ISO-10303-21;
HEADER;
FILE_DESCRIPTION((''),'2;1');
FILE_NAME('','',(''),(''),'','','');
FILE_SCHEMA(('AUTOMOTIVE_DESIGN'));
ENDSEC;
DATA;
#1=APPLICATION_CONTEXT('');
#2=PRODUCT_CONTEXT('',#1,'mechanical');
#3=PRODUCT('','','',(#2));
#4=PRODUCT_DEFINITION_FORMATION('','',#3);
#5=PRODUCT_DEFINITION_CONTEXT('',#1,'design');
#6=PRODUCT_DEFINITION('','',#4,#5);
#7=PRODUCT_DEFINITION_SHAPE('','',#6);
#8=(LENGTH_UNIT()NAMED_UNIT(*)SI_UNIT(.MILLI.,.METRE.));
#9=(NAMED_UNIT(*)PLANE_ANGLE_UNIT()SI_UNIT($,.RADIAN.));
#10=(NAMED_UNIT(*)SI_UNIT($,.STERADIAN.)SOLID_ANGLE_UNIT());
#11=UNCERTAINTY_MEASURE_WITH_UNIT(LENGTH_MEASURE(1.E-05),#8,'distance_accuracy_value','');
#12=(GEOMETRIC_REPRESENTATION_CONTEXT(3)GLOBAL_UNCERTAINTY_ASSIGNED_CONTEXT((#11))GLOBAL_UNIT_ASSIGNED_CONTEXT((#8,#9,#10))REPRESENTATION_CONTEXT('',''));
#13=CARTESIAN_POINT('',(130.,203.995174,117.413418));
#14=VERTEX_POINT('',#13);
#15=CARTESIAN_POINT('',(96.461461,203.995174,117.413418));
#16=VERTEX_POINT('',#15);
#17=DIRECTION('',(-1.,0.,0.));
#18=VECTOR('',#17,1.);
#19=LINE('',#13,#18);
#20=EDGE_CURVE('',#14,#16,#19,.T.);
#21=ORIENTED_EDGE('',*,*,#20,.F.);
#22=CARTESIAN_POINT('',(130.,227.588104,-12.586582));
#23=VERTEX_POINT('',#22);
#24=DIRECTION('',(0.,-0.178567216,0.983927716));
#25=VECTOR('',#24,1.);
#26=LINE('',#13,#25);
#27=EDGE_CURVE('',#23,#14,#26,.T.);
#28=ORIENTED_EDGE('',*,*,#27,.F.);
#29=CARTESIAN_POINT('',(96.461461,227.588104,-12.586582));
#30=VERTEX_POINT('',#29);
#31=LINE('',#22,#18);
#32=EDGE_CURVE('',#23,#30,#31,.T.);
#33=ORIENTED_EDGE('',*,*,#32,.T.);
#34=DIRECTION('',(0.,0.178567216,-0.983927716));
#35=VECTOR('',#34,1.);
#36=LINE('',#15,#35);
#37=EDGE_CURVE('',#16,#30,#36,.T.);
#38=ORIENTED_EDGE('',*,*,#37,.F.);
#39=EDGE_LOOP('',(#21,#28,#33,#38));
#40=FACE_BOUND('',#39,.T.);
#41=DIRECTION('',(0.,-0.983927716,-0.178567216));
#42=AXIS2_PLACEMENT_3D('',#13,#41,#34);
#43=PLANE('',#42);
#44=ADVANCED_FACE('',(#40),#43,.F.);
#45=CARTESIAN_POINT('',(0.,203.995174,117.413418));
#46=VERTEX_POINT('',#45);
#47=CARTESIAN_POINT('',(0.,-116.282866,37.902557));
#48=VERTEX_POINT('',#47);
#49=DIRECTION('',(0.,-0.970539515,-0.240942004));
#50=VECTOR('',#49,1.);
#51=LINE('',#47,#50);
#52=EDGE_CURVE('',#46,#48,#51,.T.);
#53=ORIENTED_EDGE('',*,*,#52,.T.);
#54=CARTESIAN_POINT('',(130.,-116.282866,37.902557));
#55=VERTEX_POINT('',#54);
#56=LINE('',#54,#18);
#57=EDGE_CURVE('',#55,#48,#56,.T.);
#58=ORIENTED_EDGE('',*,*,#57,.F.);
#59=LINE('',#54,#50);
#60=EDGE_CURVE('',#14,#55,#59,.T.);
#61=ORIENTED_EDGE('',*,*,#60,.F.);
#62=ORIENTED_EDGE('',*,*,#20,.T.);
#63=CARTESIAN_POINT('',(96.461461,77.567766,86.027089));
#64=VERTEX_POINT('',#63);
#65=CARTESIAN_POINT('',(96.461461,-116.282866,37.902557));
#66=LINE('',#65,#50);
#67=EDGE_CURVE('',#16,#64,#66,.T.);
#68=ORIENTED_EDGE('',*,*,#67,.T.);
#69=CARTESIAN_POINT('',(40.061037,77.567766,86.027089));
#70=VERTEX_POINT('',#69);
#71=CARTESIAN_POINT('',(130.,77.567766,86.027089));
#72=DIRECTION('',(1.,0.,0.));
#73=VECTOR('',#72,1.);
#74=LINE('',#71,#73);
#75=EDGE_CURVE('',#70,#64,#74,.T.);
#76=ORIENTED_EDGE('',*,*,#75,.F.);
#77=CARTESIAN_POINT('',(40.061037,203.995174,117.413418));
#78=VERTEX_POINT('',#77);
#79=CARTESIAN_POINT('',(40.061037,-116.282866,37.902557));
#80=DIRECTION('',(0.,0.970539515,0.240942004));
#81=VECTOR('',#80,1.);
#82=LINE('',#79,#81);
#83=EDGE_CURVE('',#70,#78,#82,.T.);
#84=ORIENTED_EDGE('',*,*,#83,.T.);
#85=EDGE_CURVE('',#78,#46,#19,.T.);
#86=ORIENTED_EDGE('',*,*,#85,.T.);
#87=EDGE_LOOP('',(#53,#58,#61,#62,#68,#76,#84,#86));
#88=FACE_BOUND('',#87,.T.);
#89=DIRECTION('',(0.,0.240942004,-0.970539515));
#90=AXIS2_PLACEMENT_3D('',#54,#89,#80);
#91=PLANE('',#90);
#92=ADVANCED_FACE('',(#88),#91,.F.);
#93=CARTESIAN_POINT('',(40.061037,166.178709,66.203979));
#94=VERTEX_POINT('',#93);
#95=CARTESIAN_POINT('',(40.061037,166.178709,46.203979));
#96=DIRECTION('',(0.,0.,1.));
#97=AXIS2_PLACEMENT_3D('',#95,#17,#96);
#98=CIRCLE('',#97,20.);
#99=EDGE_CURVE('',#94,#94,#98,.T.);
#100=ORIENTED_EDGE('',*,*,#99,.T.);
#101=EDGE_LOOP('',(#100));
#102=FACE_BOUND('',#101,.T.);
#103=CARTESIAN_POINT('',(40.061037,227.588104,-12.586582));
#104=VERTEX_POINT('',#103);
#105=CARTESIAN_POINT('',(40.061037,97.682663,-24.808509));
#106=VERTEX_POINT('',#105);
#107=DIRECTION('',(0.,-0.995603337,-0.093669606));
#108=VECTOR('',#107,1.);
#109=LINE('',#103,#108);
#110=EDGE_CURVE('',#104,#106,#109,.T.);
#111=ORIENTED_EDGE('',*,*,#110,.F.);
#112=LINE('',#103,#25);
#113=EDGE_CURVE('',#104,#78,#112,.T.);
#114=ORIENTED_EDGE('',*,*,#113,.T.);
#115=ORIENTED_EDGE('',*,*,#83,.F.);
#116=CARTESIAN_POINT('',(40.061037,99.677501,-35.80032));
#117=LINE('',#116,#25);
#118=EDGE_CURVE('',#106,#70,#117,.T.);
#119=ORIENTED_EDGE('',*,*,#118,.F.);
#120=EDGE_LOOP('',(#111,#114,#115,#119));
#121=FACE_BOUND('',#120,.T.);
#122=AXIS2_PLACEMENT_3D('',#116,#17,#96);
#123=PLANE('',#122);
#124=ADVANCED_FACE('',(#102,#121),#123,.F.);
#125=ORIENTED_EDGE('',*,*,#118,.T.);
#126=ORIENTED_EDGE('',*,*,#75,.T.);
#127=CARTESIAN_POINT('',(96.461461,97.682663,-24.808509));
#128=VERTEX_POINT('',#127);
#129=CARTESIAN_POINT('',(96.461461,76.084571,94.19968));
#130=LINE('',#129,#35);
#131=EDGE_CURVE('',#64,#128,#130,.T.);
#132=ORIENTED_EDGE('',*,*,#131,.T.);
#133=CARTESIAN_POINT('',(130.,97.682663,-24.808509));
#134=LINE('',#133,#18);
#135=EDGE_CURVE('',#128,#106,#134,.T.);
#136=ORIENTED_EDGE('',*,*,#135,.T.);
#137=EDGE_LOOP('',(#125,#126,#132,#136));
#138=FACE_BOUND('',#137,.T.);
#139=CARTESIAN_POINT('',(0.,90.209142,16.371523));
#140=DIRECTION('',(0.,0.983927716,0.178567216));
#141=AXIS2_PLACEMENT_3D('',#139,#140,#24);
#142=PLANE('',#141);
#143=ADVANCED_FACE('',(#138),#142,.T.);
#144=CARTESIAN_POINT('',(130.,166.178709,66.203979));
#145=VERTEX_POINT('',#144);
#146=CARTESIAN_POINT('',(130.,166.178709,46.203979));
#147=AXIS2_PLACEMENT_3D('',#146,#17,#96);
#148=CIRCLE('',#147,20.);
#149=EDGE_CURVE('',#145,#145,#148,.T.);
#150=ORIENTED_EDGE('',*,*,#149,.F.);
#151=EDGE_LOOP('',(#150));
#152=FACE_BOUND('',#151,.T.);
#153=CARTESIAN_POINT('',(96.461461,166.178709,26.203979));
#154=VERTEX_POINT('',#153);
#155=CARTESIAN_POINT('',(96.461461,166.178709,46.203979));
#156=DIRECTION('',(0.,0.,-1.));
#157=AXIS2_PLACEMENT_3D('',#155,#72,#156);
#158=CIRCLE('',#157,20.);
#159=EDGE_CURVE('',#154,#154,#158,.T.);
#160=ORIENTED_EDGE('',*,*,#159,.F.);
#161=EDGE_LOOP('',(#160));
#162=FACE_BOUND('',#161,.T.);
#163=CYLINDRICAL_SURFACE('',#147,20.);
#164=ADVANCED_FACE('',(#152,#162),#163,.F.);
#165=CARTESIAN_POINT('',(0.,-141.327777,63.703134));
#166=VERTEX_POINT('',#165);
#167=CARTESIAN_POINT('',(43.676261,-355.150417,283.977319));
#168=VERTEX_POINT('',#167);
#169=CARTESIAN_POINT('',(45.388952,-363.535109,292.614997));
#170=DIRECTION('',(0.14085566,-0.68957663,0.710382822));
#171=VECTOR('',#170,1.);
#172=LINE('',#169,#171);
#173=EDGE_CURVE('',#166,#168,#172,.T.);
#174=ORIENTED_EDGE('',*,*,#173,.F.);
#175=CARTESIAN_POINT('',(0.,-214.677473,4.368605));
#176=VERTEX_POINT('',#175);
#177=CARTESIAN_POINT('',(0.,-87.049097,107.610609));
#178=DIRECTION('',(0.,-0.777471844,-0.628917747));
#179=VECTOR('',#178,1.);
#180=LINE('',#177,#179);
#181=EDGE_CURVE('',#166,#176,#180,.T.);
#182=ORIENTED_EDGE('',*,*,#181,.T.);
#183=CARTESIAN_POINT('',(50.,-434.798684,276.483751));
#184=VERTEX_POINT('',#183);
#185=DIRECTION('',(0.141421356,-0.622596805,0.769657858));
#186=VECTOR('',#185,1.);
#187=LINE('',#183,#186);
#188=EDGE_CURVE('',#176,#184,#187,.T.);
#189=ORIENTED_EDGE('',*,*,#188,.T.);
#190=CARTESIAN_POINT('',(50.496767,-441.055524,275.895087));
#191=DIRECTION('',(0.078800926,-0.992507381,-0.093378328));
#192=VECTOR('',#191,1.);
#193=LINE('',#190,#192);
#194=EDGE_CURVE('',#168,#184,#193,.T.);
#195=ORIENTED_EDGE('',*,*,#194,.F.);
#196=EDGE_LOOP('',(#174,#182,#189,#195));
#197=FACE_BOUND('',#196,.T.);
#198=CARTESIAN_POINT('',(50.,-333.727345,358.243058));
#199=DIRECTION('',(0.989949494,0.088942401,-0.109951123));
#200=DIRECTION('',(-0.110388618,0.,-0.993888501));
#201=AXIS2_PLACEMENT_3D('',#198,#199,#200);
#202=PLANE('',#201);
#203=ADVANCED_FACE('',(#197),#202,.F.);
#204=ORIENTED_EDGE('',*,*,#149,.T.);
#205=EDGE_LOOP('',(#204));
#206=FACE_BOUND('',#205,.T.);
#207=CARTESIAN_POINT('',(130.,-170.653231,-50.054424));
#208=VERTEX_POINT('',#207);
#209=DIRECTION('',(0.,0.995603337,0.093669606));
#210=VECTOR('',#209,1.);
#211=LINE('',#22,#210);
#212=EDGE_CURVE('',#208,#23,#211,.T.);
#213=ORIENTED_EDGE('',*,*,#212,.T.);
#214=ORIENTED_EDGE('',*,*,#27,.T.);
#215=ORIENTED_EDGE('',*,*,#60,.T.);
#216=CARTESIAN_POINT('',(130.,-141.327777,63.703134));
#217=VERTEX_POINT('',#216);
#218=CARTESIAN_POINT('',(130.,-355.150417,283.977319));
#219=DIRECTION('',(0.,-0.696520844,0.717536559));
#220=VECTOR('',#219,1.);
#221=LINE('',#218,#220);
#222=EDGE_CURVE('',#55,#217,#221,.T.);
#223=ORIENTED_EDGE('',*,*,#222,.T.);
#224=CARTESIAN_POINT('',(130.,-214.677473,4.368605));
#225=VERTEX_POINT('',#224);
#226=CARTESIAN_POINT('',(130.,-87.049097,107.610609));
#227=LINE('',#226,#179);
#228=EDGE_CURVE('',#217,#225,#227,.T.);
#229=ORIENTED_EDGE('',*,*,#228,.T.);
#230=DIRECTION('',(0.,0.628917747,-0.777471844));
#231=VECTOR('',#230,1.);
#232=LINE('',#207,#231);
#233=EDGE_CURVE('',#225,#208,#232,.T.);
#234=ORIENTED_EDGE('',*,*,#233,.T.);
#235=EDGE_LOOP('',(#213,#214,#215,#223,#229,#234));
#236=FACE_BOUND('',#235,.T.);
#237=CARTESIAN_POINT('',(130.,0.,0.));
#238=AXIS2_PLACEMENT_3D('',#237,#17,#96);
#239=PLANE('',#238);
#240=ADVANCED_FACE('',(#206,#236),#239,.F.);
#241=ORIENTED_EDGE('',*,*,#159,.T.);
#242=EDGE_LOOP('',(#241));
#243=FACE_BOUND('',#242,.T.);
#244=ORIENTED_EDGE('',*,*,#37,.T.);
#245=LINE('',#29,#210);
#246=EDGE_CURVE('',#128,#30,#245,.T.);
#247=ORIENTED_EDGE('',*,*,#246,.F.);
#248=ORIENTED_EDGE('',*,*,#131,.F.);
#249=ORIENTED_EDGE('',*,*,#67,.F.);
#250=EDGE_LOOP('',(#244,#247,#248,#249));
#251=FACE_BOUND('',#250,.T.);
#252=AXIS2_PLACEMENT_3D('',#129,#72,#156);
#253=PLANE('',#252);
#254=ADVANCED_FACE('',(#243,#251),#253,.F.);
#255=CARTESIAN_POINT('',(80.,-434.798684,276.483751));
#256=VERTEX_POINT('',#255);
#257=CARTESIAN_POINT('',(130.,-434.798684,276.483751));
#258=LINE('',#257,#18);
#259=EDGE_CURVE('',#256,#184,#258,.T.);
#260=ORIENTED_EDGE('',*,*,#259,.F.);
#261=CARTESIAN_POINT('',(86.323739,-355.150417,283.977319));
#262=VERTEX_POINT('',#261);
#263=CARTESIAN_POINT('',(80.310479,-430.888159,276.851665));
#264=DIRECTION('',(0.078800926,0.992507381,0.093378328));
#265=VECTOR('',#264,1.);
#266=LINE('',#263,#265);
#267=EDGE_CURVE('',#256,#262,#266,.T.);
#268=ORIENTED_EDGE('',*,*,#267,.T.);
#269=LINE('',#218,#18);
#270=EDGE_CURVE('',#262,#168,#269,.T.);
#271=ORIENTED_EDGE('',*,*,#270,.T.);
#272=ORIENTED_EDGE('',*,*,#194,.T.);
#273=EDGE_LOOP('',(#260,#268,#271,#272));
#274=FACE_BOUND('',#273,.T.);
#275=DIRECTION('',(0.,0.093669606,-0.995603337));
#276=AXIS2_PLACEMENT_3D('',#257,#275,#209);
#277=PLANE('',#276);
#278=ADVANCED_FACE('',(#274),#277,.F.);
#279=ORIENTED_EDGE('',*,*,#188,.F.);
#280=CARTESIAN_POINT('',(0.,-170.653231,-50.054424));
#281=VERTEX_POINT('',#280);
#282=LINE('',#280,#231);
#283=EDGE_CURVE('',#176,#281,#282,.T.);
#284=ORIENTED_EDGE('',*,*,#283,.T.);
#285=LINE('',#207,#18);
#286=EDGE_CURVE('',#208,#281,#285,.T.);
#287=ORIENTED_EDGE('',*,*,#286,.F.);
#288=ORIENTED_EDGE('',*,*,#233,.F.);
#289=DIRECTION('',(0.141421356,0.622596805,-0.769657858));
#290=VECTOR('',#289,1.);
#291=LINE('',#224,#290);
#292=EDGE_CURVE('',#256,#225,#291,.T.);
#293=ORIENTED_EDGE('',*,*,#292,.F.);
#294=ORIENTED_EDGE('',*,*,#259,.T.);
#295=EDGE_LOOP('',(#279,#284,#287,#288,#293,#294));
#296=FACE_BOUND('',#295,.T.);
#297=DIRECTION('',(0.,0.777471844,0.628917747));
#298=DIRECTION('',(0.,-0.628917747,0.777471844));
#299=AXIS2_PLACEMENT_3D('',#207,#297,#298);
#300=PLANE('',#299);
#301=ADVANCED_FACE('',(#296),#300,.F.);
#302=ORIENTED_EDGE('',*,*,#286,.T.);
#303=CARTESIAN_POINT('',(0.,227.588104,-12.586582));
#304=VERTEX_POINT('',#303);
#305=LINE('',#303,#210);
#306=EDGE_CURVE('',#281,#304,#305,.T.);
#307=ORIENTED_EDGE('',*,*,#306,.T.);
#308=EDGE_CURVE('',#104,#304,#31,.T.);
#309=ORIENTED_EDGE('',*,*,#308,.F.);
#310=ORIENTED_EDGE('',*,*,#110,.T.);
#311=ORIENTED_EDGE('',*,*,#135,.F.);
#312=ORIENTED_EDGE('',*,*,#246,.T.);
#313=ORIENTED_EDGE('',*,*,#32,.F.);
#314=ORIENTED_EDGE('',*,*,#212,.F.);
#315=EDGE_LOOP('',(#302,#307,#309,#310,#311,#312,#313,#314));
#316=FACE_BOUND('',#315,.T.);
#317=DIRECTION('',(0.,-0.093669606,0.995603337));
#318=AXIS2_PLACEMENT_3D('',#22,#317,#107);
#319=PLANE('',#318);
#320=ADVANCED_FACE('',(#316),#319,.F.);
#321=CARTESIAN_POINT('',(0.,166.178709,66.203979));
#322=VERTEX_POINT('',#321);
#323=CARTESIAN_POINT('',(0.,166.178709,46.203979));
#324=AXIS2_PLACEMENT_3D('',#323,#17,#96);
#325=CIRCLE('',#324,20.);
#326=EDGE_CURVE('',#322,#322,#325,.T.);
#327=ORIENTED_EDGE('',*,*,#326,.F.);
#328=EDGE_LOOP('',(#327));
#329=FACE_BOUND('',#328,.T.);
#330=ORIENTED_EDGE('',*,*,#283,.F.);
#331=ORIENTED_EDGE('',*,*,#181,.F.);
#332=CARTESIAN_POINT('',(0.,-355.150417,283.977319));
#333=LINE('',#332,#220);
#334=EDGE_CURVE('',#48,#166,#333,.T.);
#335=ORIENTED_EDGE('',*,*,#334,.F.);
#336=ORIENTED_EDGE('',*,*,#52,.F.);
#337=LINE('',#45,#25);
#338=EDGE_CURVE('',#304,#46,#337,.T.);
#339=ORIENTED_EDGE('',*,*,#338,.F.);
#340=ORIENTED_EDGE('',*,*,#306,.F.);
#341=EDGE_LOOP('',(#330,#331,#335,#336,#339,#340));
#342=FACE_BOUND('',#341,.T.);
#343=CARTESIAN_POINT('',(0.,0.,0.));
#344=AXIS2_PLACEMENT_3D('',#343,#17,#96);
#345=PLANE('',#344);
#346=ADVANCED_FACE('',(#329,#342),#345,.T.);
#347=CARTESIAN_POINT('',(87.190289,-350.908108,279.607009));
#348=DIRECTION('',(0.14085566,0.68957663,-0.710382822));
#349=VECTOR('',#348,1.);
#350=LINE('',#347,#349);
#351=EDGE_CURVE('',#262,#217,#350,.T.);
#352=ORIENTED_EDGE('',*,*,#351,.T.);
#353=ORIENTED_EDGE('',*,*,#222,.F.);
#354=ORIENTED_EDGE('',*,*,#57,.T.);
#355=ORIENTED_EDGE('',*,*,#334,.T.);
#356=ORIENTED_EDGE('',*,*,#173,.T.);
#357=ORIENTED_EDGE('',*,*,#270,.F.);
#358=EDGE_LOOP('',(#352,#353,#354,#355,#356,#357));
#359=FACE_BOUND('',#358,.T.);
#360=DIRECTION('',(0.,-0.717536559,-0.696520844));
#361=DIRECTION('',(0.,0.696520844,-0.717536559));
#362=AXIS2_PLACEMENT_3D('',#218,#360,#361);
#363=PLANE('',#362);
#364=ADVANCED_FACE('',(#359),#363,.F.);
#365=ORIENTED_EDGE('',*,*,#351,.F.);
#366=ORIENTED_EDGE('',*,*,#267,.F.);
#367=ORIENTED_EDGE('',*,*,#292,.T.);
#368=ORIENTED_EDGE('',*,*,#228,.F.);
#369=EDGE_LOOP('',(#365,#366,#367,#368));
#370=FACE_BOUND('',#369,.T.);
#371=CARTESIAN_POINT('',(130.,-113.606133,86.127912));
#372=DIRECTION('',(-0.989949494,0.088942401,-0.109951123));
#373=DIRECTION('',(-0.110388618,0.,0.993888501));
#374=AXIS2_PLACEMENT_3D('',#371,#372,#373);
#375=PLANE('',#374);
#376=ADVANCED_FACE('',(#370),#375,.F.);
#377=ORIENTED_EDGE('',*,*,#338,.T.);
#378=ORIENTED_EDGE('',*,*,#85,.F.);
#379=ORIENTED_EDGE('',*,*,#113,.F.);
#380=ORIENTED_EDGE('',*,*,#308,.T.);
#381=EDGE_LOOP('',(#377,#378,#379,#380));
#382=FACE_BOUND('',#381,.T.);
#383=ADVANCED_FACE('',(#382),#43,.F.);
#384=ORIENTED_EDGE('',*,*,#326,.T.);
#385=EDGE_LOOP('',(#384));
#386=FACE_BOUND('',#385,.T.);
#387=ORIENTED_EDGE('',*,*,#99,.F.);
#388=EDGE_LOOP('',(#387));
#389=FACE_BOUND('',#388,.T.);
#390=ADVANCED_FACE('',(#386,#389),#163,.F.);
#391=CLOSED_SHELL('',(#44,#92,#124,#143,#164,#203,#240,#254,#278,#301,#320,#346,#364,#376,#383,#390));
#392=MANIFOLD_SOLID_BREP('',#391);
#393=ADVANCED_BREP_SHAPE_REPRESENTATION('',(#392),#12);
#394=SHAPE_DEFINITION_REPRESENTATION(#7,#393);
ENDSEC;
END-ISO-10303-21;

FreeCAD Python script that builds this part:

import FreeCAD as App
import Part
import Sketcher


def add_polygon(sketch, points):
    """Adds a closed chain of lines whose ends are joined by coincident constraints."""
    first, n = sketch.GeometryCount, len(points)
    for a, b in zip(points, points[1:] + points[:1]):
        sketch.addGeometry(Part.LineSegment(App.Vector(*a, 0), App.Vector(*b, 0)), False)
    for i in range(n):
        sketch.addConstraint(Sketcher.Constraint("Coincident", first + i, 2, first + (i + 1) % n, 1))

doc = App.newDocument("Part")
body = doc.addObject("PartDesign::Body", "Body")

# Sketch on YZ plane
sketch1 = body.newObject("Sketcher::SketchObject", "Sketch")
sketch1.AttachmentSupport = (doc.getObject("YZ_Plane"), [""])
sketch1.MapMode = "FlatFace"
add_polygon(sketch1, [(227.588104, -12.586582), (203.995174, 117.413418), (-116.282866, 37.902557), (-355.150417, 283.977319), (-434.798684, 276.483751), (-170.653231, -50.054424)])  # lines 0-5
sketch1.addConstraint([
    Sketcher.Constraint("Parallel", 3, 5),
    Sketcher.Constraint("Distance", 1, 330.0),
    Sketcher.Constraint("Distance", 3, 80.0),
    Sketcher.Constraint("Distance", 4, 420.0),
    Sketcher.Constraint("Distance", 5, 400.0),
    Sketcher.Constraint("DistanceY", 5, 2, 0, 2, 130.0),
    Sketcher.Constraint("DistanceY", 0, 2, 2, 2, 166.563901),
    Sketcher.Constraint("DistanceY", -1, 1, 0, 2, 117.413418),
    Sketcher.Constraint("DistanceY", -1, 1, 3, 2, 276.483751),
    Sketcher.Constraint("DistanceX", 4, 2, -1, 1, 170.653231),
    Sketcher.Constraint("DistanceX", 1, 2, 0, 2, 320.27804),
    Sketcher.Constraint("DistanceX", 2, 2, 1, 2, 238.867551),
])
pad1 = body.newObject("PartDesign::Pad", "Pad")
pad1.Profile = sketch1
pad1.Length = 130

# Sketch on an angled plane
sketch2 = body.newObject("Sketcher::SketchObject", "Sketch001")
sketch2.Placement = App.Placement(App.Vector(0, -127.628376, -103.242004), App.Rotation(App.Vector(1, 0, 0), App.Vector(0, -0.628917747, 0.777471844), App.Vector(0, -0.777471844, -0.628917747), "ZXY"))
add_polygon(sketch2, [(80, 488.41094), (130, 138.41094), (130, 488.41094)])  # lines 0-2
add_polygon(sketch2, [(0, 138.41094), (50, 488.41094), (0, 488.41094)])  # lines 3-5
sketch2.addConstraint([
    Sketcher.Constraint("Vertical", 1),
    Sketcher.Constraint("Horizontal", 2),
    Sketcher.Constraint("Horizontal", 4),
    Sketcher.Constraint("Vertical", 5),
    Sketcher.Constraint("PointOnObject", 4, 2, -2),
    Sketcher.Constraint("Horizontal", 2, 2, 3, 2),
    Sketcher.Constraint("Horizontal", 0, 2, 5, 2),
    Sketcher.Constraint("Equal", 2, 4),
    Sketcher.Constraint("DistanceX", 2, 2, 2, 1, 50.0),
    Sketcher.Constraint("DistanceY", 1, 1, 1, 2, 350.0),
    Sketcher.Constraint("DistanceX", -1, 1, 0, 2, 130.0),
    Sketcher.Constraint("DistanceY", -1, 1, 0, 2, 138.41094),
])
pocket1 = body.newObject("PartDesign::Pocket", "Pocket")
pocket1.Profile = sketch2
pocket1.Length = 130

# Sketch on an angled plane
sketch3 = body.newObject("Sketcher::SketchObject", "Sketch002")
sketch3.Placement = App.Placement(App.Vector(0, 218.119745, 39.585261), App.Rotation(App.Vector(1, 0, 0), App.Vector(0, 0.178567216, -0.983927716), App.Vector(0, 0.983927716, 0.178567216), "ZXY"))
add_polygon(sketch3, [(40.061037, 53.024061), (40.061037, -79.099466), (96.461461, -79.099466), (96.461461, 53.024061)])  # lines 0-3
sketch3.addConstraint([
    Sketcher.Constraint("Vertical", 0),
    Sketcher.Constraint("Horizontal", 1),
    Sketcher.Constraint("Vertical", 2),
    Sketcher.Constraint("Horizontal", 3),
    Sketcher.Constraint("DistanceX", 1, 1, 1, 2, 56.400424),
    Sketcher.Constraint("DistanceY", 0, 2, 0, 1, 132.123527),
    Sketcher.Constraint("DistanceX", -1, 1, 1, 2, 96.461461),
    Sketcher.Constraint("DistanceY", -1, 1, 2, 2, 53.024061),
])
pocket2 = body.newObject("PartDesign::Pocket", "Pocket001")
pocket2.Profile = sketch3
pocket2.Length = 130

# Sketch on YZ plane
sketch4 = body.newObject("Sketcher::SketchObject", "Sketch003")
sketch4.AttachmentSupport = (doc.getObject("YZ_Plane"), [""])
sketch4.MapMode = "FlatFace"
sketch4.addGeometry(Part.Circle(App.Vector(166.178709, 46.203979, 0), App.Vector(0, 0, 1), 20), False)
sketch4.addConstraint([
    Sketcher.Constraint("Diameter", 0, 40.0),
    Sketcher.Constraint("DistanceX", -1, 1, 0, 3, 166.178709),
    Sketcher.Constraint("DistanceY", -1, 1, 0, 3, 46.203979),
])
pocket3 = body.newObject("PartDesign::Pocket", "Pocket002")
pocket3.Profile = sketch4
pocket3.Type = "ThroughAll"
pocket3.Reversed = True

doc.recompute()
